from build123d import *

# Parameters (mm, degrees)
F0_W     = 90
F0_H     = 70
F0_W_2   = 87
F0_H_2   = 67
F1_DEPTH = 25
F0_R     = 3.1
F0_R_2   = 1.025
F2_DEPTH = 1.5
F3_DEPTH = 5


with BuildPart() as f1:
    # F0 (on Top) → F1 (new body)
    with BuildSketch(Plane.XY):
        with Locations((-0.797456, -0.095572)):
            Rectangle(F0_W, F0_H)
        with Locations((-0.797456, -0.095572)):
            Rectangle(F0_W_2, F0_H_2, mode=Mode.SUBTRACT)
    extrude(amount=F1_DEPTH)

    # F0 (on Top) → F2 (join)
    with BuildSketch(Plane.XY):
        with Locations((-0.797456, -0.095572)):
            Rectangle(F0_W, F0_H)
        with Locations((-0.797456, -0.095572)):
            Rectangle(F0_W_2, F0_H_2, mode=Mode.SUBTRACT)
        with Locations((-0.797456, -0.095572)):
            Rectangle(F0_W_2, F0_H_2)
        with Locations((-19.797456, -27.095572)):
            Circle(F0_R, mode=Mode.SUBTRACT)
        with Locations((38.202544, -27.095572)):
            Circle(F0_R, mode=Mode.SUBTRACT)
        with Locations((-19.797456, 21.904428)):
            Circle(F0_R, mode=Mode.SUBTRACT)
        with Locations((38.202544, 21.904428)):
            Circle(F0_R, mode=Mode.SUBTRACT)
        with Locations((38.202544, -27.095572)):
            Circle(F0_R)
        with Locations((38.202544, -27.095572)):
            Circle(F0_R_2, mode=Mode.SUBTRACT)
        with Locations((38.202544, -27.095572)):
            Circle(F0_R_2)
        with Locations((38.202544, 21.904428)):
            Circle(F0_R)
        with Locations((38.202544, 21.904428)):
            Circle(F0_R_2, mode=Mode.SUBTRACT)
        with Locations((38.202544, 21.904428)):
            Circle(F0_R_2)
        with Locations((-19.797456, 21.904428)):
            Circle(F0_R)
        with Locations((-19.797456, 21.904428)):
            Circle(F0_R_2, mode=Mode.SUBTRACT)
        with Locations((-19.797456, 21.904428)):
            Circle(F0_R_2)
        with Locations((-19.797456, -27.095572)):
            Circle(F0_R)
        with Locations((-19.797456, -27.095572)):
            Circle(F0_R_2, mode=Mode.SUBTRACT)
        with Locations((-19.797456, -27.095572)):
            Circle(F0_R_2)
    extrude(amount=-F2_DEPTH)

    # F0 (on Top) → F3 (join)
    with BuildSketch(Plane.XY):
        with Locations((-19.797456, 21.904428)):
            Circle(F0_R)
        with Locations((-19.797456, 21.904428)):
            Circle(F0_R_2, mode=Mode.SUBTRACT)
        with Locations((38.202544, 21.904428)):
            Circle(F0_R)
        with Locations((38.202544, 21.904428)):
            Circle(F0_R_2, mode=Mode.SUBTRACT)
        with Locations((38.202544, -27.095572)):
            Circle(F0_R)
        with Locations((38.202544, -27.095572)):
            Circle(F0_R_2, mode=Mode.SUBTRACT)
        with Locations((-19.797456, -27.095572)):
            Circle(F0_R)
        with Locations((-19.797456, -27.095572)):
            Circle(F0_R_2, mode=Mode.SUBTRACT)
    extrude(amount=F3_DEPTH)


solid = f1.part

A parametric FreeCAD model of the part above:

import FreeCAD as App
import Part
import Sketcher

V = App.Vector


def add_polygon(sketch, points):
    """Adds a closed chain of lines whose ends are joined by coincident constraints."""
    first, n = sketch.GeometryCount, len(points)
    for a, b in zip(points, points[1:] + points[:1]):
        sketch.addGeometry(Part.LineSegment(App.Vector(*a, 0), App.Vector(*b, 0)), False)
    for i in range(n):
        sketch.addConstraint(Sketcher.Constraint("Coincident", first + i, 2, first + (i + 1) % n, 1))

doc = App.newDocument("Part")
body = doc.addObject("PartDesign::Body", "Body")

# Sketch on XY plane
sketch1 = body.newObject("Sketcher::SketchObject", "Sketch")
sketch1.AttachmentSupport = (doc.getObject("XY_Plane"), [""])
sketch1.MapMode = "FlatFace"
add_polygon(sketch1, [(-45.797456, 34.904428), (-45.797456, -35.095572), (44.202544, -35.095572), (44.202544, 34.904428)])  # lines 0-3
add_polygon(sketch1, [(42.702544, -33.595572), (-44.297456, -33.595572), (-44.297456, 33.404428), (42.702544, 33.404428)])  # lines 4-7
sketch1.addConstraint(Sketcher.Constraint("Vertical", 0))
sketch1.addConstraint(Sketcher.Constraint("Horizontal", 1))
sketch1.addConstraint(Sketcher.Constraint("Vertical", 2))
sketch1.addConstraint(Sketcher.Constraint("Horizontal", 3))
sketch1.addConstraint(Sketcher.Constraint("Horizontal", 4))
sketch1.addConstraint(Sketcher.Constraint("Vertical", 5))
sketch1.addConstraint(Sketcher.Constraint("Horizontal", 6))
sketch1.addConstraint(Sketcher.Constraint("Vertical", 7))
sketch1.addConstraint(Sketcher.Constraint("DistanceX", 1, 1, 1, 2, 90.0))
sketch1.addConstraint(Sketcher.Constraint("DistanceX", 4, 2, 4, 1, 87.0))
sketch1.addConstraint(Sketcher.Constraint("DistanceY", 0, 2, 0, 1, 70.0))
sketch1.addConstraint(Sketcher.Constraint("DistanceY", 5, 1, 5, 2, 67.0))
sketch1.addConstraint(Sketcher.Constraint("DistanceX", 0, 2, 4, 2, 1.5))
sketch1.addConstraint(Sketcher.Constraint("DistanceY", 0, 2, 4, 2, 1.5))
sketch1.addConstraint(Sketcher.Constraint("DistanceY", 0, 2, -1, 1, 35.095572))
sketch1.addConstraint(Sketcher.Constraint("DistanceX", 0, 2, -1, 1, 45.797456))
pad1 = body.newObject("PartDesign::Pad", "Pad")
pad1.Profile = sketch1
pad1.Length = 25

# Sketch on XY plane
sketch2 = body.newObject("Sketcher::SketchObject", "Sketch001")
sketch2.AttachmentSupport = (doc.getObject("XY_Plane"), [""])
sketch2.MapMode = "FlatFace"
add_polygon(sketch2, [(-45.797456, 34.904428), (-45.797456, -35.095572), (44.202544, -35.095572), (44.202544, 34.904428)])  # lines 0-3
sketch2.addConstraint(Sketcher.Constraint("Vertical", 0))
sketch2.addConstraint(Sketcher.Constraint("Horizontal", 1))
sketch2.addConstraint(Sketcher.Constraint("Vertical", 2))
sketch2.addConstraint(Sketcher.Constraint("Horizontal", 3))
sketch2.addConstraint(Sketcher.Constraint("DistanceX", 1, 1, 1, 2, 90.0))
sketch2.addConstraint(Sketcher.Constraint("DistanceY", 0, 2, 0, 1, 70.0))
sketch2.addConstraint(Sketcher.Constraint("DistanceY", 0, 2, -1, 1, 35.095572))
sketch2.addConstraint(Sketcher.Constraint("DistanceX", 0, 2, -1, 1, 45.797456))
pad2 = body.newObject("PartDesign::Pad", "Pad001")
pad2.Profile = sketch2
pad2.Length = 1.5
pad2.Reversed = True

# Sketch on XY plane
sketch3 = body.newObject("Sketcher::SketchObject", "Sketch002")
sketch3.AttachmentSupport = (doc.getObject("XY_Plane"), [""])
sketch3.MapMode = "FlatFace"
sketch3.addGeometry(Part.Circle(V(-19.797456, 21.904428, 0), V(0, 0, 1), 3.1), False)
sketch3.addGeometry(Part.Circle(V(-19.797456, 21.904428, 0), V(0, 0, 1), 1.025), False)
sketch3.addGeometry(Part.Circle(V(38.202544, 21.904428, 0), V(0, 0, 1), 3.1), False)
sketch3.addGeometry(Part.Circle(V(38.202544, 21.904428, 0), V(0, 0, 1), 1.025), False)
sketch3.addGeometry(Part.Circle(V(38.202544, -27.095572, 0), V(0, 0, 1), 3.1), False)
sketch3.addGeometry(Part.Circle(V(38.202544, -27.095572, 0), V(0, 0, 1), 1.025), False)
sketch3.addGeometry(Part.Circle(V(-19.797456, -27.095572, 0), V(0, 0, 1), 3.1), False)
sketch3.addGeometry(Part.Circle(V(-19.797456, -27.095572, 0), V(0, 0, 1), 1.025), False)
sketch3.addConstraint(Sketcher.Constraint("Coincident", 1, 3, 0, 3))
sketch3.addConstraint(Sketcher.Constraint("Coincident", 3, 3, 2, 3))
sketch3.addConstraint(Sketcher.Constraint("Coincident", 5, 3, 4, 3))
sketch3.addConstraint(Sketcher.Constraint("Coincident", 7, 3, 6, 3))
sketch3.addConstraint(Sketcher.Constraint("Equal", 0, 2))
sketch3.addConstraint(Sketcher.Constraint("Equal", 1, 3))
sketch3.addConstraint(Sketcher.Constraint("Equal", 2, 4))
sketch3.addConstraint(Sketcher.Constraint("Equal", 3, 5))
sketch3.addConstraint(Sketcher.Constraint("Equal", 4, 6))
sketch3.addConstraint(Sketcher.Constraint("Equal", 5, 7))
sketch3.addConstraint(Sketcher.Constraint("Horizontal", 1, 3, 2, 3))
sketch3.addConstraint(Sketcher.Constraint("Horizontal", 5, 3, 6, 3))
sketch3.addConstraint(Sketcher.Constraint("Vertical", 3, 3, 4, 3))
sketch3.addConstraint(Sketcher.Constraint("Vertical", 1, 3, 6, 3))
sketch3.addConstraint(Sketcher.Constraint("Diameter", 0, 6.2))
sketch3.addConstraint(Sketcher.Constraint("Diameter", 1, 2.05))
sketch3.addConstraint(Sketcher.Constraint("DistanceX", 0, 3, 2, 3, 58.0))
sketch3.addConstraint(Sketcher.Constraint("DistanceY", 4, 3, 2, 3, 49.0))
sketch3.addConstraint(Sketcher.Constraint("DistanceX", 0, 3, -1, 1, 19.797456))
sketch3.addConstraint(Sketcher.Constraint("DistanceY", -1, 1, 0, 3, 21.904428))
pad3 = body.newObject("PartDesign::Pad", "Pad002")
pad3.Profile = sketch3
pad3.Length = 5

doc.recompute()
